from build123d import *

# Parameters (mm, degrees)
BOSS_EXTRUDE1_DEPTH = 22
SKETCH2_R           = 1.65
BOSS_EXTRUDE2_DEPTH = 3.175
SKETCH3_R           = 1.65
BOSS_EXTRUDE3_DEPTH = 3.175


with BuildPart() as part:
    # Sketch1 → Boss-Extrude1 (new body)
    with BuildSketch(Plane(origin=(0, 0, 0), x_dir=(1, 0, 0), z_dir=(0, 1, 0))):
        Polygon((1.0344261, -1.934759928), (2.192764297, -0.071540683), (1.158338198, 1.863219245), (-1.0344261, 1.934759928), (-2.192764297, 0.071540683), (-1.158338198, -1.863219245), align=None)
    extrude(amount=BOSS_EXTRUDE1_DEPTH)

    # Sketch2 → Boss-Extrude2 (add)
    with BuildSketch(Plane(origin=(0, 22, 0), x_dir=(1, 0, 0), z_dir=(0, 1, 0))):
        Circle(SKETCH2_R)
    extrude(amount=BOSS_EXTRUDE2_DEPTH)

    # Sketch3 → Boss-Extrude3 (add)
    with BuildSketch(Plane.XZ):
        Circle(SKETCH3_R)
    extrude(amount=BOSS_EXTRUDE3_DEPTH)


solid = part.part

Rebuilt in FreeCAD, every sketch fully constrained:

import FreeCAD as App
import Part
import Sketcher
from FreeCAD import Vector
Q = App.Units.Quantity


def add_polygon(sketch, points):
    """Adds a closed chain of lines whose ends are joined by coincident constraints."""
    first, n = sketch.GeometryCount, len(points)
    for a, b in zip(points, points[1:] + points[:1]):
        sketch.addGeometry(Part.LineSegment(App.Vector(*a, 0), App.Vector(*b, 0)), False)
    for i in range(n):
        sketch.addConstraint(Sketcher.Constraint("Coincident", first + i, 2, first + (i + 1) % n, 1))

doc = App.newDocument("Part")
body = doc.addObject("PartDesign::Body", "Body")

sketch1 = body.newObject("Sketcher::SketchObject", "Sketch")
sketch1.AttachmentSupport = (doc.getObject("XZ_Plane"), [""])
sketch1.MapMode = "FlatFace"
add_polygon(sketch1, [(1.034426, 1.93476), (2.192764, 0.071541), (1.158338, -1.863219), (-1.034426, -1.93476), (-2.192764, -0.071541), (-1.158338, 1.863219)])
sketch1.addConstraint([
    Sketcher.Constraint("Symmetric", 0, 2, 3, 2, -1, 1),
    Sketcher.Constraint("Symmetric", 1, 2, 4, 2, -1, 1),
    Sketcher.Constraint("Symmetric", 2, 2, 5, 2, -1, 1),
    Sketcher.Constraint("Equal", 0, 1),
    Sketcher.Constraint("Equal", 1, 2),
    Sketcher.Constraint("DistanceY", 2, 2, 0, 2, Q("2.006301 mm")),
    Sketcher.Constraint("Distance", 0, Q("2.193931 mm")),
    Sketcher.Constraint("DistanceY", -1, 1, 0, 2, Q("0.071541 mm")),
    Sketcher.Constraint("DistanceX", -1, 1, 1, 2, Q("1.158338 mm")),
])
pad1 = body.newObject("PartDesign::Pad", "Pad")
pad1.Profile = sketch1
pad1.Length = 22
pad1.Reversed = True

sketch2 = body.newObject("Sketcher::SketchObject", "Sketch001")
sketch2.AttachmentSupport = (doc.getObject("XZ_Plane"), [""])
sketch2.MapMode = "FlatFace"
sketch2.AttachmentOffset = App.Placement(Vector(0, 0, -22), App.Rotation())
sketch2.addGeometry(Part.Circle(Vector(0, 0, 0), Vector(0, 0, 1), 1.65), False)
sketch2.addConstraint([
    Sketcher.Constraint("Coincident", 0, 3, -1, 1),
    Sketcher.Constraint("Diameter", 0, Q("3.3 mm")),
])
pad2 = body.newObject("PartDesign::Pad", "Pad001")
pad2.Profile = sketch2
pad2.Length = 3.175
pad2.Reversed = True

sketch3 = body.newObject("Sketcher::SketchObject", "Sketch002")
sketch3.AttachmentSupport = (doc.getObject("XZ_Plane"), [""])
sketch3.MapMode = "FlatFace"
sketch3.addGeometry(Part.Circle(Vector(0, 0, 0), Vector(0, 0, 1), 1.65), False)
sketch3.addConstraint([
    Sketcher.Constraint("Coincident", 0, 3, -1, 1),
    Sketcher.Constraint("Diameter", 0, Q("3.3 mm")),
])
pad3 = body.newObject("PartDesign::Pad", "Pad002")
pad3.Profile = sketch3
pad3.Length = 3.175

doc.recompute()
